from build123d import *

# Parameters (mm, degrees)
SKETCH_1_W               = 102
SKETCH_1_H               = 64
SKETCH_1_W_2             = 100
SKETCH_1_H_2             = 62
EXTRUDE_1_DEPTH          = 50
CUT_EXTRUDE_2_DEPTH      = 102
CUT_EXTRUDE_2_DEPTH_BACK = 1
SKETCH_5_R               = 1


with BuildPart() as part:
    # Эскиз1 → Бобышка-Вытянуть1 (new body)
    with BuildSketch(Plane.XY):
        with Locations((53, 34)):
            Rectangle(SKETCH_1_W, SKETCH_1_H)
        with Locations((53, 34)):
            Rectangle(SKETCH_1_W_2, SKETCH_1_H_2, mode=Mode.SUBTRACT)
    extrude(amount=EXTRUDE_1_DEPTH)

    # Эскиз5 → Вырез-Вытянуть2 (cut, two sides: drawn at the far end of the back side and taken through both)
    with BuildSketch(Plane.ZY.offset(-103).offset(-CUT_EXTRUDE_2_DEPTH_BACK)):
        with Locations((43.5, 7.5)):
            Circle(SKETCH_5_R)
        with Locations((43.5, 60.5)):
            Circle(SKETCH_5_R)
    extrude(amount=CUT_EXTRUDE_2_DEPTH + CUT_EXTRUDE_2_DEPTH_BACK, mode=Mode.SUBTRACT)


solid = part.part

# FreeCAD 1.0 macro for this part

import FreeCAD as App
import Part
import Sketcher
from FreeCAD import Vector


def add_polygon(sketch, points):
    """Adds a closed chain of lines whose ends are joined by coincident constraints."""
    first, n = sketch.GeometryCount, len(points)
    for a, b in zip(points, points[1:] + points[:1]):
        sketch.addGeometry(Part.LineSegment(App.Vector(*a, 0), App.Vector(*b, 0)), False)
    for i in range(n):
        sketch.addConstraint(Sketcher.Constraint("Coincident", first + i, 2, first + (i + 1) % n, 1))

doc = App.newDocument("Part")
body = doc.addObject("PartDesign::Body", "Body")

sketch1 = body.newObject("Sketcher::SketchObject", "Sketch")
sketch1.AttachmentSupport = (doc.getObject("XY_Plane"), [""])
sketch1.MapMode = "FlatFace"
add_polygon(sketch1, [(2, 66), (2, 2), (104, 2), (104, 66)])
add_polygon(sketch1, [(103, 3), (3, 3), (3, 65), (103, 65)])
sketch1.addConstraint([
    Sketcher.Constraint("Vertical", 0),
    Sketcher.Constraint("Horizontal", 1),
    Sketcher.Constraint("Vertical", 2),
    Sketcher.Constraint("Horizontal", 3),
    Sketcher.Constraint("Horizontal", 4),
    Sketcher.Constraint("Vertical", 5),
    Sketcher.Constraint("Horizontal", 6),
    Sketcher.Constraint("Vertical", 7),
    Sketcher.Constraint("DistanceX", 1, 1, 1, 2, 102.0),
    Sketcher.Constraint("DistanceX", 4, 2, 4, 1, 100.0),
    Sketcher.Constraint("DistanceY", 0, 2, 0, 1, 64.0),
    Sketcher.Constraint("DistanceY", 5, 1, 5, 2, 62.0),
    Sketcher.Constraint("DistanceX", -1, 1, 0, 2, 2.0),
    Sketcher.Constraint("DistanceY", -1, 1, 0, 2, 2.0),
    Sketcher.Constraint("DistanceX", -1, 1, 4, 2, 3.0),
    Sketcher.Constraint("DistanceY", -1, 1, 4, 2, 3.0),
])
pad1 = body.newObject("PartDesign::Pad", "Pad")
pad1.Profile = sketch1
pad1.Length = 50

sketch2 = body.newObject("Sketcher::SketchObject", "Sketch001")
sketch2.AttachmentSupport = (doc.getObject("YZ_Plane"), [""])
sketch2.MapMode = "FlatFace"
sketch2.AttachmentOffset = App.Placement(Vector(0, 0, 103), App.Rotation())
sketch2.addGeometry([
    Part.Circle(Vector(7.5, 43.5, 0), Vector(0, 0, 1), 1),
    Part.Circle(Vector(60.5, 43.5, 0), Vector(0, 0, 1), 1),
], False)
sketch2.addConstraint([
    Sketcher.Constraint("Equal", 0, 1),
    Sketcher.Constraint("Horizontal", 0, 3, 1, 3),
    Sketcher.Constraint("Diameter", 0, 2.0),
    Sketcher.Constraint("DistanceX", 0, 3, 1, 3, 53.0),
    Sketcher.Constraint("DistanceX", -1, 1, 0, 3, 7.5),
    Sketcher.Constraint("DistanceY", -1, 1, 0, 3, 43.5),
])
pocket1 = body.newObject("PartDesign::Pocket", "Pocket")
pocket1.Profile = sketch2
pocket1.Type = "ThroughAll"
pocket1.Midplane = True

doc.recompute()
